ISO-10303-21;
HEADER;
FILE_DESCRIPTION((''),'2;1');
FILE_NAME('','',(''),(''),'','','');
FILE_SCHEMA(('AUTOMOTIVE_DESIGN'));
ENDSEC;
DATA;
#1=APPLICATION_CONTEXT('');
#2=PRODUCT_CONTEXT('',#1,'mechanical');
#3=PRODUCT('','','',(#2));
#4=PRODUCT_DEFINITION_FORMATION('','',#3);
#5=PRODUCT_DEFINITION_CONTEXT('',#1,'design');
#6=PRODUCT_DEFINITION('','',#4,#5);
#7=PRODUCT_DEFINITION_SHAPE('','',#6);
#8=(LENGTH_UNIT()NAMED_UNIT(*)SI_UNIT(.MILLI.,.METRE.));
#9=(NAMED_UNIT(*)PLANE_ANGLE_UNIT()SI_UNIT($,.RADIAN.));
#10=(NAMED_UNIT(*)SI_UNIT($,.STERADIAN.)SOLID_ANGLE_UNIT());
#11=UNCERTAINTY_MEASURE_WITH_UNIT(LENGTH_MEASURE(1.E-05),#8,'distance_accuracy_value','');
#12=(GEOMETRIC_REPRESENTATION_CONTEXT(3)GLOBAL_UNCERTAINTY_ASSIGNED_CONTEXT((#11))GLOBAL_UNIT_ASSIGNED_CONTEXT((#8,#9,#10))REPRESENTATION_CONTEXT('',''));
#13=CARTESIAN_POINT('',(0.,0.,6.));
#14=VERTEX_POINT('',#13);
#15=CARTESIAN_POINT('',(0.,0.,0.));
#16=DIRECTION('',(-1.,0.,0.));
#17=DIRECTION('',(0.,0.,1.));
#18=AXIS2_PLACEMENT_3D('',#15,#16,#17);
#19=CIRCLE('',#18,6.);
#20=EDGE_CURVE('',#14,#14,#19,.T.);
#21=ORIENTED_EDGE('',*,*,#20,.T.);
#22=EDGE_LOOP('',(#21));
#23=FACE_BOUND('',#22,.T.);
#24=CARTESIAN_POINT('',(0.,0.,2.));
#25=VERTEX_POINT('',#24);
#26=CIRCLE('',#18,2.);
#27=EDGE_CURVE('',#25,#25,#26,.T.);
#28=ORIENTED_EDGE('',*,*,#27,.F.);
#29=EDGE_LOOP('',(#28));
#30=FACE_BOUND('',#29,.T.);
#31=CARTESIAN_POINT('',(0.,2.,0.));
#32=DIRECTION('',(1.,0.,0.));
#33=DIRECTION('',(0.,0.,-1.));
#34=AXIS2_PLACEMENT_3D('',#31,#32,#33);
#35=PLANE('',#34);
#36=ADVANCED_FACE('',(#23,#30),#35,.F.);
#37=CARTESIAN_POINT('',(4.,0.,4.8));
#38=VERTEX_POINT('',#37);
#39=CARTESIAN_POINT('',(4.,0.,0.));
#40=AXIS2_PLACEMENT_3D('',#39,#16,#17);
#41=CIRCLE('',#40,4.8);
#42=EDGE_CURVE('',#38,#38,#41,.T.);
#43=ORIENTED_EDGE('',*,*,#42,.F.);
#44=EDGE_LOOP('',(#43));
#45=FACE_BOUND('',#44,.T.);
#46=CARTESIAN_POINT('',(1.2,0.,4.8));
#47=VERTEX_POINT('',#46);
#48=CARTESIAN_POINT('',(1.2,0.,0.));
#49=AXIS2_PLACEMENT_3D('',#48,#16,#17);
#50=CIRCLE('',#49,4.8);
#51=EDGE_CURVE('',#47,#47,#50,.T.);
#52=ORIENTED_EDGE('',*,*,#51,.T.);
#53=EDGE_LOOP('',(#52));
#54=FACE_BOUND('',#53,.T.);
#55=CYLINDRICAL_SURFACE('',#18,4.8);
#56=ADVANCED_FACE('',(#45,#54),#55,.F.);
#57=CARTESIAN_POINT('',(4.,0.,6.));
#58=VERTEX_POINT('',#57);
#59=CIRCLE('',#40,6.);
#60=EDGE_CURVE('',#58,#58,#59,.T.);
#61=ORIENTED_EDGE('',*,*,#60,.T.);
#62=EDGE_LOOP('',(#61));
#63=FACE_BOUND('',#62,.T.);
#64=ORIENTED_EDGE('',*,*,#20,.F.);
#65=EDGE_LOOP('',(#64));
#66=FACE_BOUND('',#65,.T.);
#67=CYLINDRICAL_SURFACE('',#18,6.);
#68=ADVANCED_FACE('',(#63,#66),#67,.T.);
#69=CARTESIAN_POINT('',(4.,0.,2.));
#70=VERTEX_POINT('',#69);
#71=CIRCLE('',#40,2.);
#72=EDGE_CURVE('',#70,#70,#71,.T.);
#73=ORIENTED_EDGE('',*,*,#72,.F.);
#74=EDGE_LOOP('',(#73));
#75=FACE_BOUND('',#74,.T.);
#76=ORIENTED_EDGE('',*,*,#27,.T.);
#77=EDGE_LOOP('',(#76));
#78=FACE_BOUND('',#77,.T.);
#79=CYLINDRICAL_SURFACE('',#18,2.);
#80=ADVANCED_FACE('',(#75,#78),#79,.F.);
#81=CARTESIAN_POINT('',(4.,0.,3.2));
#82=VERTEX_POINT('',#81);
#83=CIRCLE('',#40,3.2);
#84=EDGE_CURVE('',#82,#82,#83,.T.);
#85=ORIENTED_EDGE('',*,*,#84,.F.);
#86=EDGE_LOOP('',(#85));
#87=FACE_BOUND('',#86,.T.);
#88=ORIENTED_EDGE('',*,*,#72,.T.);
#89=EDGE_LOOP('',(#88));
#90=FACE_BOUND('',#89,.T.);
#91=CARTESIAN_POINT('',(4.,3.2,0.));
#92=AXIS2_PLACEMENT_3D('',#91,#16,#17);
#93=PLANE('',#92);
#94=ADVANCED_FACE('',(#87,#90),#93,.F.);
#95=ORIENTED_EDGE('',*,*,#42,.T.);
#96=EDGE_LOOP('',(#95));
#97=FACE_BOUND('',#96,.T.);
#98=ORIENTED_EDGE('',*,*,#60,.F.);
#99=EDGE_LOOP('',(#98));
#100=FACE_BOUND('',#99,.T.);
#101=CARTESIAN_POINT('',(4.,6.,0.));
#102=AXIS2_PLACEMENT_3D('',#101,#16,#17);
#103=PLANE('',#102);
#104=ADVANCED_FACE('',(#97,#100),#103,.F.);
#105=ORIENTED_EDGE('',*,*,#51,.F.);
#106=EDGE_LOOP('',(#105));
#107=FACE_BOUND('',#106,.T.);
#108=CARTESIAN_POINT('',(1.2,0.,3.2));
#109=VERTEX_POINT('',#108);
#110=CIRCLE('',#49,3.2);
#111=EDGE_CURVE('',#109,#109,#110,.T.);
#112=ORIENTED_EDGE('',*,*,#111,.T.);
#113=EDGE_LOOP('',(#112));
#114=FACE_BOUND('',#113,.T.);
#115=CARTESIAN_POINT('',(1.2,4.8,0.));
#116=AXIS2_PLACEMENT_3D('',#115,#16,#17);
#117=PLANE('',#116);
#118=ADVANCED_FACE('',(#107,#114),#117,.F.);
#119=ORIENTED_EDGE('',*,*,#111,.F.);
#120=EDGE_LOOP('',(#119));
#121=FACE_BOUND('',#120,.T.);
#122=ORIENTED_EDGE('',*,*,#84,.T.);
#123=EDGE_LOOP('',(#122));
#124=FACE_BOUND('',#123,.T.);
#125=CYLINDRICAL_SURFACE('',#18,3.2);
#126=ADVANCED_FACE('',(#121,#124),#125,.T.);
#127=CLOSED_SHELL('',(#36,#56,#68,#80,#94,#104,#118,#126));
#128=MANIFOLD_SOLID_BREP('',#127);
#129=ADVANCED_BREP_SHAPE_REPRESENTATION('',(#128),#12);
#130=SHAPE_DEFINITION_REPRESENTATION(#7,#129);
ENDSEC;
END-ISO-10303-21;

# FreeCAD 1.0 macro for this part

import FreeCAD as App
import Part
import Sketcher


def add_polygon(sketch, points):
    """Adds a closed chain of lines whose ends are joined by coincident constraints."""
    first, n = sketch.GeometryCount, len(points)
    for a, b in zip(points, points[1:] + points[:1]):
        sketch.addGeometry(Part.LineSegment(App.Vector(*a, 0), App.Vector(*b, 0)), False)
    for i in range(n):
        sketch.addConstraint(Sketcher.Constraint("Coincident", first + i, 2, first + (i + 1) % n, 1))

doc = App.newDocument("Part")
params = doc.addObject("Spreadsheet::Sheet", "Params")
for row, (alias, value) in enumerate([
    ("sketch1_width", "4 mm"),
    ("sketch1_width2", "2.8 mm"),
    ("sketch1_height", "1.2 mm"),
    ("revolution_angle", "360 deg"),
], start=1):
    params.set(f"A{row}", alias)
    params.set(f"B{row}", "=" + value)
    params.setAlias(f"B{row}", alias)

body = doc.addObject("PartDesign::Body", "Body")

sketch1 = body.newObject("Sketcher::SketchObject", "Sketch")
sketch1.AttachmentSupport = (doc.getObject("XY_Plane"), [""])
sketch1.MapMode = "FlatFace"
add_polygon(sketch1, [(0, 2), (4, 2), (4, 3.2), (1.2, 3.2), (1.2, 4.8), (4, 4.8), (4, 6), (0, 6)])
sketch1.addConstraint([
    Sketcher.Constraint("Horizontal", 0),
    Sketcher.Constraint("Vertical", 1),
    Sketcher.Constraint("Horizontal", 2),
    Sketcher.Constraint("Vertical", 3),
    Sketcher.Constraint("Horizontal", 4),
    Sketcher.Constraint("Vertical", 5),
    Sketcher.Constraint("Horizontal", 6),
    Sketcher.Constraint("Vertical", 7),
    Sketcher.Constraint("PointOnObject", 6, 2, -2),
    Sketcher.Constraint("Vertical", 1, 2, 4, 2),
    Sketcher.Constraint("Equal", 1, 5),
    Sketcher.Constraint("Equal", 6, 7),
    Sketcher.Constraint("DistanceX", 0, 1, 0, 2, 4.0),
    Sketcher.Constraint("DistanceX", 2, 2, 2, 1, 2.8),
    Sketcher.Constraint("DistanceY", 1, 1, 1, 2, 1.2),
    Sketcher.Constraint("DistanceY", -1, 1, 0, 2, 2.0),
])
sketch1.setExpression("Constraints[20]", "Params.sketch1_width")
sketch1.setExpression("Constraints[21]", "Params.sketch1_width2")
sketch1.setExpression("Constraints[22]", "Params.sketch1_height")
revolution = body.newObject("PartDesign::Revolution", "Revolution")
revolution.Profile = sketch1
revolution.ReferenceAxis = (sketch1, ["H_Axis"])
revolution.setExpression("Angle", "Params.revolution_angle")

doc.recompute()
